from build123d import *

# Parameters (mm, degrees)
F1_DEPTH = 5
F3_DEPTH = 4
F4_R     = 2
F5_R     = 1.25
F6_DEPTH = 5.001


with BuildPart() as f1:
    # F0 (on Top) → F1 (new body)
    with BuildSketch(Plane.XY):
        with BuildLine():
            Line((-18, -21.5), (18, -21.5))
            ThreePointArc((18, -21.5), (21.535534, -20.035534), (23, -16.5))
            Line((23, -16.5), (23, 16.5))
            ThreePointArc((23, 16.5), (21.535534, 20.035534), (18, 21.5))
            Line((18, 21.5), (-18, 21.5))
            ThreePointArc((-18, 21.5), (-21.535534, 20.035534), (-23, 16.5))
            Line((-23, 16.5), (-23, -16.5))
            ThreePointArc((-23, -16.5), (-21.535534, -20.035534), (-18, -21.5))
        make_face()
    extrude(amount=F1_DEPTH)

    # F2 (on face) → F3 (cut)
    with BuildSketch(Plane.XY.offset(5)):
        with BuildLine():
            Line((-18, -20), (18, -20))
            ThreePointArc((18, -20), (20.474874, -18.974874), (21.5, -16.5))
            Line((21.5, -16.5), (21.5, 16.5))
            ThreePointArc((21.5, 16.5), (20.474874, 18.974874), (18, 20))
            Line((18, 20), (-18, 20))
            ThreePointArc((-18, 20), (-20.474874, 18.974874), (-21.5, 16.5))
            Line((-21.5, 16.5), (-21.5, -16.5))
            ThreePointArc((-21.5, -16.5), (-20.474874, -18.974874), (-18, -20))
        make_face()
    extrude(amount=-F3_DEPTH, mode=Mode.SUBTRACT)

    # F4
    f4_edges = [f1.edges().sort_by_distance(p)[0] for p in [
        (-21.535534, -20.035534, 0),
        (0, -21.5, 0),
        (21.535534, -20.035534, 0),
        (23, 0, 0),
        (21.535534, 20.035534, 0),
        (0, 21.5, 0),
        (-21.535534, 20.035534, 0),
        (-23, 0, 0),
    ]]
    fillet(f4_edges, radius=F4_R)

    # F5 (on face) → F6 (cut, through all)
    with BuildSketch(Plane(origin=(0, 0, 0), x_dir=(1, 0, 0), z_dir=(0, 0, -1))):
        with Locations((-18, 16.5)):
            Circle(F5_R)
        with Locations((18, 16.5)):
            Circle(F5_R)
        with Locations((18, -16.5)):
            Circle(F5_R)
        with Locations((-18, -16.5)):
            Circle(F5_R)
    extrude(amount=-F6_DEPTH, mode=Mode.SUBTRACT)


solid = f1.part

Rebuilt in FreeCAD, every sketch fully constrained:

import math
import FreeCAD as App
import Part
import Sketcher
from FreeCAD import Vector
Q = App.Units.Quantity


def edges_at(feature, points):
    """Names of the edges that pass closest to the given points."""
    edges = feature.Shape.Edges
    near = lambda p: min(range(len(edges)), key=lambda i: edges[i].distToShape(Part.Vertex(*p))[0])
    return sorted({f"Edge{near(p) + 1}" for p in points})

doc = App.newDocument("Part")
body = doc.addObject("PartDesign::Body", "Body")

# Sketch on XY plane
sketch1 = body.newObject("Sketcher::SketchObject", "Sketch")
sketch1.AttachmentSupport = (doc.getObject("XY_Plane"), [""])
sketch1.MapMode = "FlatFace"
sketch1.addGeometry(Part.LineSegment(Vector(-18, -21.5, 0), Vector(18, -21.5, 0)), False)
sketch1.addGeometry(Part.ArcOfCircle(Part.Circle(Vector(18, -16.5, 0), Vector(0, 0, 1), 5), math.radians(-90), math.radians(0)), False)
sketch1.addGeometry(Part.LineSegment(Vector(23, -16.5, 0), Vector(23, 16.5, 0)), False)
sketch1.addGeometry(Part.ArcOfCircle(Part.Circle(Vector(18, 16.5, 0), Vector(0, 0, 1), 5), math.radians(0), math.radians(90)), False)
sketch1.addGeometry(Part.LineSegment(Vector(18, 21.5, 0), Vector(-18, 21.5, 0)), False)
sketch1.addGeometry(Part.ArcOfCircle(Part.Circle(Vector(-18, 16.5, 0), Vector(0, 0, 1), 5), math.radians(90), math.radians(180)), False)
sketch1.addGeometry(Part.LineSegment(Vector(-23, 16.5, 0), Vector(-23, -16.5, 0)), False)
sketch1.addGeometry(Part.ArcOfCircle(Part.Circle(Vector(-18, -16.5, 0), Vector(0, 0, 1), 5), math.radians(180), math.radians(270)), False)
sketch1.addConstraint(Sketcher.Constraint("Tangent", 0, 2, 1, 1))
sketch1.addConstraint(Sketcher.Constraint("Tangent", 1, 2, 2, 1))
sketch1.addConstraint(Sketcher.Constraint("Tangent", 2, 2, 3, 1))
sketch1.addConstraint(Sketcher.Constraint("Tangent", 3, 2, 4, 1))
sketch1.addConstraint(Sketcher.Constraint("Tangent", 4, 2, 5, 1))
sketch1.addConstraint(Sketcher.Constraint("Tangent", 5, 2, 6, 1))
sketch1.addConstraint(Sketcher.Constraint("Tangent", 6, 2, 7, 1))
sketch1.addConstraint(Sketcher.Constraint("Tangent", 7, 2, 0, 1))
sketch1.addConstraint(Sketcher.Constraint("Horizontal", 0))
sketch1.addConstraint(Sketcher.Constraint("Vertical", 2))
sketch1.addConstraint(Sketcher.Constraint("Horizontal", 4))
sketch1.addConstraint(Sketcher.Constraint("Vertical", 6))
sketch1.addConstraint(Sketcher.Constraint("Equal", 1, 3))
sketch1.addConstraint(Sketcher.Constraint("Equal", 3, 5))
sketch1.addConstraint(Sketcher.Constraint("Equal", 5, 7))
sketch1.addConstraint(Sketcher.Constraint("Symmetric", 1, 3, 5, 3, -1, 1))
sketch1.addConstraint(Sketcher.Constraint("Radius", 1, Q("5 mm")))
sketch1.addConstraint(Sketcher.Constraint("DistanceX", 0, 1, 0, 2, Q("36 mm")))
sketch1.addConstraint(Sketcher.Constraint("DistanceY", 2, 1, 2, 2, Q("33 mm")))
pad1 = body.newObject("PartDesign::Pad", "Pad")
pad1.Profile = sketch1
pad1.Length = 5

# Sketch on XY plane
sketch2 = body.newObject("Sketcher::SketchObject", "Sketch001")
sketch2.AttachmentSupport = (doc.getObject("XY_Plane"), [""])
sketch2.MapMode = "FlatFace"
sketch2.AttachmentOffset = App.Placement(Vector(0, 0, 5), App.Rotation())
sketch2.addGeometry(Part.LineSegment(Vector(-18, -20, 0), Vector(18, -20, 0)), False)
sketch2.addGeometry(Part.ArcOfCircle(Part.Circle(Vector(18, -16.5, 0), Vector(0, 0, 1), 3.5), math.radians(-90), math.radians(0)), False)
sketch2.addGeometry(Part.LineSegment(Vector(21.5, -16.5, 0), Vector(21.5, 16.5, 0)), False)
sketch2.addGeometry(Part.ArcOfCircle(Part.Circle(Vector(18, 16.5, 0), Vector(0, 0, 1), 3.5), math.radians(0), math.radians(90)), False)
sketch2.addGeometry(Part.LineSegment(Vector(18, 20, 0), Vector(-18, 20, 0)), False)
sketch2.addGeometry(Part.ArcOfCircle(Part.Circle(Vector(-18, 16.5, 0), Vector(0, 0, 1), 3.5), math.radians(90), math.radians(180)), False)
sketch2.addGeometry(Part.LineSegment(Vector(-21.5, 16.5, 0), Vector(-21.5, -16.5, 0)), False)
sketch2.addGeometry(Part.ArcOfCircle(Part.Circle(Vector(-18, -16.5, 0), Vector(0, 0, 1), 3.5), math.radians(180), math.radians(270)), False)
sketch2.addConstraint(Sketcher.Constraint("Tangent", 0, 2, 1, 1))
sketch2.addConstraint(Sketcher.Constraint("Tangent", 1, 2, 2, 1))
sketch2.addConstraint(Sketcher.Constraint("Tangent", 2, 2, 3, 1))
sketch2.addConstraint(Sketcher.Constraint("Tangent", 3, 2, 4, 1))
sketch2.addConstraint(Sketcher.Constraint("Tangent", 4, 2, 5, 1))
sketch2.addConstraint(Sketcher.Constraint("Tangent", 5, 2, 6, 1))
sketch2.addConstraint(Sketcher.Constraint("Tangent", 6, 2, 7, 1))
sketch2.addConstraint(Sketcher.Constraint("Tangent", 7, 2, 0, 1))
sketch2.addConstraint(Sketcher.Constraint("Horizontal", 0))
sketch2.addConstraint(Sketcher.Constraint("Vertical", 2))
sketch2.addConstraint(Sketcher.Constraint("Horizontal", 4))
sketch2.addConstraint(Sketcher.Constraint("Vertical", 6))
sketch2.addConstraint(Sketcher.Constraint("Equal", 1, 3))
sketch2.addConstraint(Sketcher.Constraint("Equal", 3, 5))
sketch2.addConstraint(Sketcher.Constraint("Equal", 5, 7))
sketch2.addConstraint(Sketcher.Constraint("Symmetric", 1, 3, 5, 3, -1, 1))
sketch2.addConstraint(Sketcher.Constraint("Radius", 1, Q("3.499999 mm")))
sketch2.addConstraint(Sketcher.Constraint("DistanceX", 0, 1, 0, 2, Q("36 mm")))
sketch2.addConstraint(Sketcher.Constraint("DistanceY", 2, 1, 2, 2, Q("33 mm")))
pocket1 = body.newObject("PartDesign::Pocket", "Pocket")
pocket1.Profile = sketch2
pocket1.Length = 4
doc.recompute()

fillet = body.newObject("PartDesign::Fillet", "Fillet")
fillet.Base = (pocket1, edges_at(pocket1, [
    (-21.536, -20.036, 0),
    (0, -21.5, 0),
    (21.536, -20.036, 0),
    (23, 0, 0),
    (21.536, 20.036, 0),
    (0, 21.5, 0),
    (-21.536, 20.036, 0),
    (-23, 0, 0),
]))
fillet.Radius = 2

# Sketch on XY plane
sketch3 = body.newObject("Sketcher::SketchObject", "Sketch002")
sketch3.AttachmentSupport = (doc.getObject("XY_Plane"), [""])
sketch3.MapMode = "FlatFace"
sketch3.addGeometry(Part.Circle(Vector(-18, -16.5, 0), Vector(0, 0, 1), 1.2), False)
sketch3.addGeometry(Part.Circle(Vector(18, -16.5, 0), Vector(0, 0, 1), 1.2), False)
sketch3.addGeometry(Part.Circle(Vector(18, 16.5, 0), Vector(0, 0, 1), 1.2), False)
sketch3.addGeometry(Part.Circle(Vector(-18, 16.5, 0), Vector(0, 0, 1), 1.2), False)
sketch3.addConstraint(Sketcher.Constraint("Equal", 0, 1))
sketch3.addConstraint(Sketcher.Constraint("Equal", 1, 2))
sketch3.addConstraint(Sketcher.Constraint("Equal", 2, 3))
sketch3.addConstraint(Sketcher.Constraint("Symmetric", 0, 3, 2, 3, -1, 1))
sketch3.addConstraint(Sketcher.Constraint("Symmetric", 1, 3, 3, 3, -1, 1))
sketch3.addConstraint(Sketcher.Constraint("Symmetric", 0, 3, 1, 3, -2))
sketch3.addConstraint(Sketcher.Constraint("Diameter", 0, Q("2.5 mm")))
sketch3.addConstraint(Sketcher.Constraint("DistanceX", 0, 3, -1, 1, Q("18 mm")))
sketch3.addConstraint(Sketcher.Constraint("DistanceY", 1, 3, 2, 3, Q("33 mm")))
pocket2 = body.newObject("PartDesign::Pocket", "Pocket001")
pocket2.Profile = sketch3
pocket2.Type = "ThroughAll"
pocket2.Reversed = True

doc.recompute()
